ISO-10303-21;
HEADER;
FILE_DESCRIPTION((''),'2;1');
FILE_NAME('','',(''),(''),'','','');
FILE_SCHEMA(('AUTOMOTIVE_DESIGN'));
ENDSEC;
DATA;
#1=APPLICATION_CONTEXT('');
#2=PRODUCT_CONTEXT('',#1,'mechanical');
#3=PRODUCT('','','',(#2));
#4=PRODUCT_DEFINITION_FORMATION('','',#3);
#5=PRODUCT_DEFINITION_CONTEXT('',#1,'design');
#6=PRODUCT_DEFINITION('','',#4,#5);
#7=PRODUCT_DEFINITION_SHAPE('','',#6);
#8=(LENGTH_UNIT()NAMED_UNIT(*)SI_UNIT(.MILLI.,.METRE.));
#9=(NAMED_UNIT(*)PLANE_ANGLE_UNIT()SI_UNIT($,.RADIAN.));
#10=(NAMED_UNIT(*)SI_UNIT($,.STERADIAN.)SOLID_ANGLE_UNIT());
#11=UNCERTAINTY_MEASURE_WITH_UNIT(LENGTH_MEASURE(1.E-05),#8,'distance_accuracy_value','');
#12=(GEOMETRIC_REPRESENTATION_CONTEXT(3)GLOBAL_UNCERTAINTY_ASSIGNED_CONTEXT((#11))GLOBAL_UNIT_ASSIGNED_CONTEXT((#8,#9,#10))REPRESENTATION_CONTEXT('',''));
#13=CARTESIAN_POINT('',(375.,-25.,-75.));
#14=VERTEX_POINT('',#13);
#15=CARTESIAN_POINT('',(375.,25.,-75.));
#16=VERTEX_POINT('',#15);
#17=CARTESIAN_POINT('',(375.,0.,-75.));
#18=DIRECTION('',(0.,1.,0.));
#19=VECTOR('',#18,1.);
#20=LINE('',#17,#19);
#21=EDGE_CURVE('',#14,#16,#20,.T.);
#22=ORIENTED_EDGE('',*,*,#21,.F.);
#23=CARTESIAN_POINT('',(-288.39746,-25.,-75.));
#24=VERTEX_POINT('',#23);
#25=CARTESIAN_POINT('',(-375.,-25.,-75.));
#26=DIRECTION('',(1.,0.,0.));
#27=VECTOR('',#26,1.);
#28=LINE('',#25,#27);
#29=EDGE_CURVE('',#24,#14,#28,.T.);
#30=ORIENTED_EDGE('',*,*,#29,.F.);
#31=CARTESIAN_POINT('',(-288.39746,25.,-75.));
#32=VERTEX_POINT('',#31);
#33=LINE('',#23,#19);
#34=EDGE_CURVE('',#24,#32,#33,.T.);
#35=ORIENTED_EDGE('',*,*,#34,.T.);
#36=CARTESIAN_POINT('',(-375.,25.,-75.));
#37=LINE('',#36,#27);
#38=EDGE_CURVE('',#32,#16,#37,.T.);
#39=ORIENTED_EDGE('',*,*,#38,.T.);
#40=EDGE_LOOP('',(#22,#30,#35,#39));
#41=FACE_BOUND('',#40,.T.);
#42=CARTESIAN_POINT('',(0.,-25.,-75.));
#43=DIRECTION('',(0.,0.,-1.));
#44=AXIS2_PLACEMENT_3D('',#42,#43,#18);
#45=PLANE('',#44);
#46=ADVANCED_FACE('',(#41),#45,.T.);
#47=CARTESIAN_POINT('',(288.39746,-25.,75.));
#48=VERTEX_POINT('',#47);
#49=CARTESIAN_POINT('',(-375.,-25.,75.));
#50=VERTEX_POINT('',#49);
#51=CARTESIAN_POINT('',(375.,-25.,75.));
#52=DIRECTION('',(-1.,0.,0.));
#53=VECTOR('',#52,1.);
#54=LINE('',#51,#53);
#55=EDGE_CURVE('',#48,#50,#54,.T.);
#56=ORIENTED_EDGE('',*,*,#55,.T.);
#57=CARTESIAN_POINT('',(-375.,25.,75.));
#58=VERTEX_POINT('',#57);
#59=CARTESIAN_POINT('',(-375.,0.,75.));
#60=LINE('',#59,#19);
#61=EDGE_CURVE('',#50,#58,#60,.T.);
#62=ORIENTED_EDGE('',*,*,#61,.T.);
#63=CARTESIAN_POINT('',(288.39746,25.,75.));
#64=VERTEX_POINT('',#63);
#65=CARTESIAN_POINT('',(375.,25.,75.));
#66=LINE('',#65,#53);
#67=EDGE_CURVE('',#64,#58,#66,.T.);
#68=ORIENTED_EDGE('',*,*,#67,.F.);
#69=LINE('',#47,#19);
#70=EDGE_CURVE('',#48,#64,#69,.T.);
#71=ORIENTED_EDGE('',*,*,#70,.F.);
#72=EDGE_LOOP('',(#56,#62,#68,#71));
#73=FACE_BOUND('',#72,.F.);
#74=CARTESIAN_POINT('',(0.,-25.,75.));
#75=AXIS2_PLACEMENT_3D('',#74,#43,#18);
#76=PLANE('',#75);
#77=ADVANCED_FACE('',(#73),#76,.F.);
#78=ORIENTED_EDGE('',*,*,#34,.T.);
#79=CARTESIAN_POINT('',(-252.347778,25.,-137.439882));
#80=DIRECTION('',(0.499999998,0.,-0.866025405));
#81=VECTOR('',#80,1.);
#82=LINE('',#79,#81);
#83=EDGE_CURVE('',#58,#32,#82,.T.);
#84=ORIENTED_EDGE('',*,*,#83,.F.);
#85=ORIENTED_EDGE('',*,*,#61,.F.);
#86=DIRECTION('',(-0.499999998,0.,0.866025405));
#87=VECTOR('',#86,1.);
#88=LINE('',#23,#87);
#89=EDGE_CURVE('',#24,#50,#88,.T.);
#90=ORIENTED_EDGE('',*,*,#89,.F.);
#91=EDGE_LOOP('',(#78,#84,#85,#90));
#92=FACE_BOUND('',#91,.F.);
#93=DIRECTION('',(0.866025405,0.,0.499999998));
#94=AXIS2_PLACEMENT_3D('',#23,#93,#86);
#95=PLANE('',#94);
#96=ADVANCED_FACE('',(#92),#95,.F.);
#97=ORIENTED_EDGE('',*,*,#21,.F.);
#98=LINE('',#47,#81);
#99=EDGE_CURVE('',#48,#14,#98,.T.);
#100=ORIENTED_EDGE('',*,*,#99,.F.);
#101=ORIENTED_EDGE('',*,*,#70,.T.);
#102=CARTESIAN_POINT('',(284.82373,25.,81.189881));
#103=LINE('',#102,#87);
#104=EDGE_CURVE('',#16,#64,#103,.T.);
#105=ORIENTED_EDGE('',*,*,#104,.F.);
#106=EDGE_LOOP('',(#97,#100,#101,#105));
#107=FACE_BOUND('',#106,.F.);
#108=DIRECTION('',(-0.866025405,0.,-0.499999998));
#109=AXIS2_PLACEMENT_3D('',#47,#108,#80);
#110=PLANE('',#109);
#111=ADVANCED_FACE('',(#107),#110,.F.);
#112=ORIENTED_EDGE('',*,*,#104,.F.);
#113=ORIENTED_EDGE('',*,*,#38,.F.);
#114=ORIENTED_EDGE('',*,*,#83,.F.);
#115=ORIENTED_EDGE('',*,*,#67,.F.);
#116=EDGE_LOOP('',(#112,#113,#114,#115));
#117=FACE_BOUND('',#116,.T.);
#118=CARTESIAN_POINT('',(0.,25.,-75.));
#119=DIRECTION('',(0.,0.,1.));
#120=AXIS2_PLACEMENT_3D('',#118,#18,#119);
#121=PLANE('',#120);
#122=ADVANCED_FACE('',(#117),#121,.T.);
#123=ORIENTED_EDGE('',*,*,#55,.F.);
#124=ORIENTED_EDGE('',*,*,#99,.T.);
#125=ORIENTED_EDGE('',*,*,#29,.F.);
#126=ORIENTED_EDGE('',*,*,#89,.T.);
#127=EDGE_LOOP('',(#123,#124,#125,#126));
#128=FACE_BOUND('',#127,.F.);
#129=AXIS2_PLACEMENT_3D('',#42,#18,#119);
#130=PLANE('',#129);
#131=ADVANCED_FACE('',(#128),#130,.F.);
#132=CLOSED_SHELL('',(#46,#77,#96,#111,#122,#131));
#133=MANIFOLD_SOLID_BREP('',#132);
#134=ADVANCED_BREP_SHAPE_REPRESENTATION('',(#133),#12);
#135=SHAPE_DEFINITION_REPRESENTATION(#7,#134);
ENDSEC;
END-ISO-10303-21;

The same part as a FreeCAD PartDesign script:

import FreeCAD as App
import Part
import Sketcher
Q = App.Units.Quantity


def add_polygon(sketch, points):
    """Adds a closed chain of lines whose ends are joined by coincident constraints."""
    first, n = sketch.GeometryCount, len(points)
    for a, b in zip(points, points[1:] + points[:1]):
        sketch.addGeometry(Part.LineSegment(App.Vector(*a, 0), App.Vector(*b, 0)), False)
    for i in range(n):
        sketch.addConstraint(Sketcher.Constraint("Coincident", first + i, 2, first + (i + 1) % n, 1))

doc = App.newDocument("Part")
body = doc.addObject("PartDesign::Body", "Body")

# Sketch on YZ plane
sketch1 = body.newObject("Sketcher::SketchObject", "Sketch")
sketch1.AttachmentSupport = (doc.getObject("YZ_Plane"), [""])
sketch1.MapMode = "FlatFace"
add_polygon(sketch1, [(-25, 75), (-25, -75), (25, -75), (25, 75)])  # lines 0-3
sketch1.addConstraint(Sketcher.Constraint("Vertical", 0))
sketch1.addConstraint(Sketcher.Constraint("Horizontal", 1))
sketch1.addConstraint(Sketcher.Constraint("Vertical", 2))
sketch1.addConstraint(Sketcher.Constraint("Horizontal", 3))
sketch1.addConstraint(Sketcher.Constraint("Symmetric", 0, 2, 2, 2, -1, 1))
sketch1.addConstraint(Sketcher.Constraint("DistanceX", 1, 1, 1, 2, 50.0))
sketch1.addConstraint(Sketcher.Constraint("DistanceY", 0, 2, 0, 1, 150.0))
pad1 = body.newObject("PartDesign::Pad", "Pad")
pad1.Profile = sketch1
pad1.Length = 750
pad1.Midplane = True

# Sketch on XZ plane
sketch2 = body.newObject("Sketcher::SketchObject", "Sketch001")
sketch2.AttachmentSupport = (doc.getObject("XZ_Plane"), [""])
sketch2.MapMode = "FlatFace"
sketch2.AttachmentOffset = App.Placement(App.Vector(0, 0, 25), App.Rotation())
add_polygon(sketch2, [(-288, -75), (-375, 75), (-375, -75)])  # lines 0-2
add_polygon(sketch2, [(288, 75), (375, -75), (375, 75)])  # lines 3-5
sketch2.addConstraint(Sketcher.Constraint("Vertical", 1))
sketch2.addConstraint(Sketcher.Constraint("Horizontal", 2))
sketch2.addConstraint(Sketcher.Constraint("Vertical", 4))
sketch2.addConstraint(Sketcher.Constraint("Horizontal", 5))
sketch2.addConstraint(Sketcher.Constraint("Symmetric", 0, 2, 3, 2, -1, 1))
sketch2.addConstraint(Sketcher.Constraint("Symmetric", 2, 2, 5, 2, -1, 1))
sketch2.addConstraint(Sketcher.Constraint("Horizontal", 2, 2, 3, 2))
sketch2.addConstraint(Sketcher.Constraint("DistanceY", 1, 2, 1, 1, 150.0))
sketch2.addConstraint(Sketcher.Constraint("Angle", 0, Q("120 deg")))
sketch2.addConstraint(Sketcher.Constraint("DistanceX", 0, 2, -1, 1, 375.0))
pocket1 = body.newObject("PartDesign::Pocket", "Pocket")
pocket1.Profile = sketch2
pocket1.Type = "ThroughAll"

doc.recompute()
